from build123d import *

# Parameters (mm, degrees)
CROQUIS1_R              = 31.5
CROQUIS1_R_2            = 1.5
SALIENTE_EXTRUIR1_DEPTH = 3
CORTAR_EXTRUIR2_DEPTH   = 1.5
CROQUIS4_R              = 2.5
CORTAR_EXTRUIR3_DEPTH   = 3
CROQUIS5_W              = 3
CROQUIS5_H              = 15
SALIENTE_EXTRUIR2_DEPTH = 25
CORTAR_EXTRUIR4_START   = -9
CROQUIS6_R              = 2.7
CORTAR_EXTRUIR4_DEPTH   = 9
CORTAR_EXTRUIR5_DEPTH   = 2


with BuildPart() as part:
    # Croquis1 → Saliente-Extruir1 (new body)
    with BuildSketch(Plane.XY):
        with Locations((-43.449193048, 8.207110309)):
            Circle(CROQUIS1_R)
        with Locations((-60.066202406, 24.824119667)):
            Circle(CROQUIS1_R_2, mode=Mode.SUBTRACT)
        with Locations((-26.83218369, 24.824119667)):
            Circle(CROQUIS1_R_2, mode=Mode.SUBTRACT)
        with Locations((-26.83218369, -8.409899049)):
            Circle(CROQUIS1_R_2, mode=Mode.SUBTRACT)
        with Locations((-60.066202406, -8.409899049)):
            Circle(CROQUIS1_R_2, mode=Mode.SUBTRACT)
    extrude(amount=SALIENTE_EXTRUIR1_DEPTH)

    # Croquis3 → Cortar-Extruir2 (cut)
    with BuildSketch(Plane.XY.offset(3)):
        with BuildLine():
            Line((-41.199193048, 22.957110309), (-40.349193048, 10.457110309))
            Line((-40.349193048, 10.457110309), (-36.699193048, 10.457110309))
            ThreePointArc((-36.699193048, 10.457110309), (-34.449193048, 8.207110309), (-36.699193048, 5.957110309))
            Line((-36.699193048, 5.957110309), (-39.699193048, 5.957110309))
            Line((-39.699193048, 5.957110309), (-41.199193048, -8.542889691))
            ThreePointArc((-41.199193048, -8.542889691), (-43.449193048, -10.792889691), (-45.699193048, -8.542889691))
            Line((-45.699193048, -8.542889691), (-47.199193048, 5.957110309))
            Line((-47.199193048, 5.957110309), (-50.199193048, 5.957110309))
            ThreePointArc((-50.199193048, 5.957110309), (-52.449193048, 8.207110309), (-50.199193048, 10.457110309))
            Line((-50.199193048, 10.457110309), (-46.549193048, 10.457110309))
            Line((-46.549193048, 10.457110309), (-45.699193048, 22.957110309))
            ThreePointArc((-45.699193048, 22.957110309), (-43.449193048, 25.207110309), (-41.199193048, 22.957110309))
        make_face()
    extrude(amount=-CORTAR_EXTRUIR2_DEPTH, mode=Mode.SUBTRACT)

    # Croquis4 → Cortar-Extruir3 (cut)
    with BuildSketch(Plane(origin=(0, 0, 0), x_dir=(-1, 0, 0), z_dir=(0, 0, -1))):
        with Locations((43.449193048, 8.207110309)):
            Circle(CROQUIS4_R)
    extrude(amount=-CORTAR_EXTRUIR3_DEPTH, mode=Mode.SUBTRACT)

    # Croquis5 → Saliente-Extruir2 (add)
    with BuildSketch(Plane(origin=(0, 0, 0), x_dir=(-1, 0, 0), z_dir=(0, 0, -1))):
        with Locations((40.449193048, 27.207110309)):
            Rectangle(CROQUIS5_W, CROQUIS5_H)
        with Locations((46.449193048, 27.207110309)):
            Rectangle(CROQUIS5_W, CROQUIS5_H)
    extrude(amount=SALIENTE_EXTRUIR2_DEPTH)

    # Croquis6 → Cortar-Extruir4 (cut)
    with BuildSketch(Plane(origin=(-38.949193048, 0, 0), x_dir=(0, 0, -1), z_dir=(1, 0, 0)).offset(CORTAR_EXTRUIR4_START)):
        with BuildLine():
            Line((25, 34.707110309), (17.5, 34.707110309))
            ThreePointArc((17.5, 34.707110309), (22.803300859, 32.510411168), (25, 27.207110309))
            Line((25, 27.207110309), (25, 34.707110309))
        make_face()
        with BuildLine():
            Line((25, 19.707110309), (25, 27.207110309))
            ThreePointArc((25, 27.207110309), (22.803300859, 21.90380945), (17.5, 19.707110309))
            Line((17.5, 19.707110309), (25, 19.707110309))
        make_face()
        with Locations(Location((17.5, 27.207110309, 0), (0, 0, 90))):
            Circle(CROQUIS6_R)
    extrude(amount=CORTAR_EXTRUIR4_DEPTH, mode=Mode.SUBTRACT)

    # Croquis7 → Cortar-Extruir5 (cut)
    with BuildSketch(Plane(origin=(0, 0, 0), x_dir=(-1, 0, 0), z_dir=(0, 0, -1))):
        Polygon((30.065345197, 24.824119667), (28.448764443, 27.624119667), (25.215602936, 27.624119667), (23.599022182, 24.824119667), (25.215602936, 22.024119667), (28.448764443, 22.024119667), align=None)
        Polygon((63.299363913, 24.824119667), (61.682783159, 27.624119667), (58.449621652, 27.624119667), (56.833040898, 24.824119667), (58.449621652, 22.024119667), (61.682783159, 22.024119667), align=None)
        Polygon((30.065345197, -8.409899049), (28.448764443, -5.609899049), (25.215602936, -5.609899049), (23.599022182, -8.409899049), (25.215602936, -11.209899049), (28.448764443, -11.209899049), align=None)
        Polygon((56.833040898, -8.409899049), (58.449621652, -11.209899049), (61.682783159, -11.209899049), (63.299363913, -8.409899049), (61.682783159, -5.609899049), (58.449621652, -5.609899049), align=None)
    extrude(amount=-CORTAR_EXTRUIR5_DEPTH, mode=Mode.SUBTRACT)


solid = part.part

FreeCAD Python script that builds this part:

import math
import FreeCAD as App
import Part
import Sketcher

V = App.Vector
Q = App.Units.Quantity


def add_polygon(sketch, points):
    """Adds a closed chain of lines whose ends are joined by coincident constraints."""
    first, n = sketch.GeometryCount, len(points)
    for a, b in zip(points, points[1:] + points[:1]):
        sketch.addGeometry(Part.LineSegment(App.Vector(*a, 0), App.Vector(*b, 0)), False)
    for i in range(n):
        sketch.addConstraint(Sketcher.Constraint("Coincident", first + i, 2, first + (i + 1) % n, 1))

doc = App.newDocument("Part")
body = doc.addObject("PartDesign::Body", "Body")

sketch1 = body.newObject("Sketcher::SketchObject", "Sketch")
sketch1.AttachmentSupport = (doc.getObject("XY_Plane"), [""])
sketch1.MapMode = "FlatFace"
sketch1.addGeometry(Part.Circle(V(-43.4, 8.2, 0), V(0, 0, 1), 31.5), False)
sketch1.addGeometry(Part.Circle(V(-60.1, -8.4, 0), V(0, 0, 1), 1.5), False)
sketch1.addGeometry(Part.Circle(V(-26.8, -8.4, 0), V(0, 0, 1), 1.5), False)
sketch1.addGeometry(Part.Circle(V(-60.1, 24.8, 0), V(0, 0, 1), 1.5), False)
sketch1.addGeometry(Part.Circle(V(-26.8, 24.8, 0), V(0, 0, 1), 1.5), False)
sketch1.addConstraint(Sketcher.Constraint("Equal", 1, 2))
sketch1.addConstraint(Sketcher.Constraint("Equal", 2, 3))
sketch1.addConstraint(Sketcher.Constraint("Equal", 3, 4))
sketch1.addConstraint(Sketcher.Constraint("Horizontal", 1, 3, 2, 3))
sketch1.addConstraint(Sketcher.Constraint("Horizontal", 3, 3, 4, 3))
sketch1.addConstraint(Sketcher.Constraint("Vertical", 1, 3, 3, 3))
sketch1.addConstraint(Sketcher.Constraint("Vertical", 2, 3, 4, 3))
sketch1.addConstraint(Sketcher.Constraint("Diameter", 0, 63.0))
sketch1.addConstraint(Sketcher.Constraint("Diameter", 1, 3.0))
sketch1.addConstraint(Sketcher.Constraint("DistanceY", 1, 3, -1, 1, 8.409899))
sketch1.addConstraint(Sketcher.Constraint("DistanceY", -1, 1, 0, 3, 8.20711))
sketch1.addConstraint(Sketcher.Constraint("DistanceY", -1, 1, 3, 3, 24.82412))
sketch1.addConstraint(Sketcher.Constraint("DistanceX", 1, 3, 0, 3, 16.617009))
sketch1.addConstraint(Sketcher.Constraint("DistanceX", 0, 3, 2, 3, 16.617009))
sketch1.addConstraint(Sketcher.Constraint("DistanceX", 0, 3, -1, 1, 43.449193))
pad1 = body.newObject("PartDesign::Pad", "Pad")
pad1.Profile = sketch1
pad1.Length = 3

sketch2 = body.newObject("Sketcher::SketchObject", "Sketch001")
sketch2.AttachmentSupport = (doc.getObject("XY_Plane"), [""])
sketch2.MapMode = "FlatFace"
sketch2.AttachmentOffset = App.Placement(V(0, 0, 3), App.Rotation())
sketch2.addGeometry(Part.LineSegment(V(-40.3, 10.5, 0), V(-41.2, 23, 0)), False)
sketch2.addGeometry(Part.ArcOfCircle(Part.Circle(V(-43.4, 23, 0), V(0, 0, 1), 2.2), math.radians(0), math.radians(180)), False)
sketch2.addGeometry(Part.LineSegment(V(-45.7, 23, 0), V(-46.5, 10.5, 0)), False)
sketch2.addGeometry(Part.LineSegment(V(-46.5, 10.5, 0), V(-50.2, 10.5, 0)), False)
sketch2.addGeometry(Part.ArcOfCircle(Part.Circle(V(-50.2, 8.2, 0), V(0, 0, 1), 2.2), math.radians(90), math.radians(270)), False)
sketch2.addGeometry(Part.LineSegment(V(-50.2, 6, 0), V(-47.2, 6, 0)), False)
sketch2.addGeometry(Part.LineSegment(V(-47.2, 6, 0), V(-45.7, -8.5, 0)), False)
sketch2.addGeometry(Part.ArcOfCircle(Part.Circle(V(-43.4, -8.5, 0), V(0, 0, 1), 2.2), math.radians(180), math.radians(360)), False)
sketch2.addGeometry(Part.LineSegment(V(-41.2, -8.5, 0), V(-39.7, 6, 0)), False)
sketch2.addGeometry(Part.LineSegment(V(-39.7, 6, 0), V(-36.7, 6, 0)), False)
sketch2.addGeometry(Part.ArcOfCircle(Part.Circle(V(-36.7, 8.2, 0), V(0, 0, 1), 2.2), math.radians(-90), math.radians(90)), False)
sketch2.addGeometry(Part.LineSegment(V(-36.7, 10.5, 0), V(-40.3, 10.5, 0)), False)
sketch2.addConstraint(Sketcher.Constraint("Coincident", 0, 2, 1, 1))
sketch2.addConstraint(Sketcher.Constraint("Coincident", 1, 2, 2, 1))
sketch2.addConstraint(Sketcher.Constraint("Coincident", 2, 2, 3, 1))
sketch2.addConstraint(Sketcher.Constraint("Tangent", 3, 2, 4, 1))
sketch2.addConstraint(Sketcher.Constraint("Tangent", 4, 2, 5, 1))
sketch2.addConstraint(Sketcher.Constraint("Coincident", 5, 2, 6, 1))
sketch2.addConstraint(Sketcher.Constraint("Coincident", 6, 2, 7, 1))
sketch2.addConstraint(Sketcher.Constraint("Coincident", 7, 2, 8, 1))
sketch2.addConstraint(Sketcher.Constraint("Coincident", 8, 2, 9, 1))
sketch2.addConstraint(Sketcher.Constraint("Tangent", 9, 2, 10, 1))
sketch2.addConstraint(Sketcher.Constraint("Tangent", 10, 2, 11, 1))
sketch2.addConstraint(Sketcher.Constraint("Coincident", 11, 2, 0, 1))
sketch2.addConstraint(Sketcher.Constraint("Horizontal", 3))
sketch2.addConstraint(Sketcher.Constraint("Horizontal", 5))
sketch2.addConstraint(Sketcher.Constraint("Horizontal", 9))
sketch2.addConstraint(Sketcher.Constraint("Horizontal", 11))
sketch2.addConstraint(Sketcher.Constraint("Equal", 1, 4))
sketch2.addConstraint(Sketcher.Constraint("Equal", 4, 7))
sketch2.addConstraint(Sketcher.Constraint("Equal", 7, 10))
sketch2.addConstraint(Sketcher.Constraint("Horizontal", 4, 3, 10, 3))
sketch2.addConstraint(Sketcher.Constraint("Horizontal", 1, 3, 0, 2))
sketch2.addConstraint(Sketcher.Constraint("Horizontal", 0, 2, 1, 2))
sketch2.addConstraint(Sketcher.Constraint("Horizontal", 7, 3, 6, 2))
sketch2.addConstraint(Sketcher.Constraint("Horizontal", 6, 2, 7, 2))
sketch2.addConstraint(Sketcher.Constraint("Vertical", 1, 3, 7, 3))
sketch2.addConstraint(Sketcher.Constraint("Equal", 5, 9))
sketch2.addConstraint(Sketcher.Constraint("Equal", 3, 11))
sketch2.addConstraint(Sketcher.Constraint("Equal", 0, 2))
sketch2.addConstraint(Sketcher.Constraint("DistanceX", 5, 1, 5, 2, 3.0))
sketch2.addConstraint(Sketcher.Constraint("Radius", 1, 2.25))
sketch2.addConstraint(Sketcher.Constraint("DistanceX", 4, 3, 0, 2, 9.0))
sketch2.addConstraint(Sketcher.Constraint("DistanceX", 3, 2, 3, 1, 3.65))
sketch2.addConstraint(Sketcher.Constraint("DistanceY", 7, 3, 1, 3, 31.5))
sketch2.addConstraint(Sketcher.Constraint("DistanceY", 2, 2, 1, 2, 12.5))
sketch2.addConstraint(Sketcher.Constraint("DistanceY", -1, 1, 1, 3, 22.95711))
sketch2.addConstraint(Sketcher.Constraint("DistanceX", 1, 3, -1, 1, 43.449193))
pocket1 = body.newObject("PartDesign::Pocket", "Pocket")
pocket1.Profile = sketch2
pocket1.Length = 1.5

sketch3 = body.newObject("Sketcher::SketchObject", "Sketch002")
sketch3.AttachmentSupport = (doc.getObject("XY_Plane"), [""])
sketch3.MapMode = "FlatFace"
sketch3.addGeometry(Part.Circle(V(-43.4, 8.2, 0), V(0, 0, 1), 2.5), False)
sketch3.addConstraint(Sketcher.Constraint("Diameter", 0, 5.0))
sketch3.addConstraint(Sketcher.Constraint("DistanceY", -1, 1, 0, 3, 8.20711))
sketch3.addConstraint(Sketcher.Constraint("DistanceX", 0, 3, -1, 1, 43.449193))
pocket2 = body.newObject("PartDesign::Pocket", "Pocket001")
pocket2.Profile = sketch3
pocket2.Length = 3
pocket2.Reversed = True

sketch4 = body.newObject("Sketcher::SketchObject", "Sketch003")
sketch4.AttachmentSupport = (doc.getObject("XY_Plane"), [""])
sketch4.MapMode = "FlatFace"
add_polygon(sketch4, [(-38.9, 34.7), (-38.9, 19.7), (-41.9, 19.7), (-41.9, 34.7)])
add_polygon(sketch4, [(-44.9, 34.7), (-44.9, 19.7), (-47.9, 19.7), (-47.9, 34.7)])
sketch4.addConstraint(Sketcher.Constraint("Vertical", 0))
sketch4.addConstraint(Sketcher.Constraint("Horizontal", 1))
sketch4.addConstraint(Sketcher.Constraint("Vertical", 2))
sketch4.addConstraint(Sketcher.Constraint("Horizontal", 3))
sketch4.addConstraint(Sketcher.Constraint("Vertical", 4))
sketch4.addConstraint(Sketcher.Constraint("Horizontal", 5))
sketch4.addConstraint(Sketcher.Constraint("Vertical", 6))
sketch4.addConstraint(Sketcher.Constraint("Horizontal", 7))
sketch4.addConstraint(Sketcher.Constraint("Horizontal", 1, 2, 4, 2))
sketch4.addConstraint(Sketcher.Constraint("Horizontal", 3, 2, 6, 2))
sketch4.addConstraint(Sketcher.Constraint("Equal", 3, 5))
sketch4.addConstraint(Sketcher.Constraint("DistanceX", 1, 2, 1, 1, 3.0))
sketch4.addConstraint(Sketcher.Constraint("DistanceY", 0, 2, 0, 1, 15.0))
sketch4.addConstraint(Sketcher.Constraint("DistanceX", 4, 2, 1, 2, 3.0))
sketch4.addConstraint(Sketcher.Constraint("DistanceY", -1, 1, 0, 2, 19.70711))
sketch4.addConstraint(Sketcher.Constraint("DistanceX", 0, 2, -1, 1, 38.949193))
pad2 = body.newObject("PartDesign::Pad", "Pad001")
pad2.Profile = sketch4
pad2.Length = 25
pad2.Reversed = True

sketch5 = body.newObject("Sketcher::SketchObject", "Sketch004")
sketch5.AttachmentSupport = (doc.getObject("YZ_Plane"), [""])
sketch5.MapMode = "FlatFace"
sketch5.AttachmentOffset = App.Placement(V(0, 0, -47.949193), App.Rotation())
sketch5.addGeometry(Part.LineSegment(V(34.7, -25, 0), V(34.7, -17.5, 0)), False)
sketch5.addGeometry(Part.ArcOfCircle(Part.Circle(V(27.2, -17.5, 0), V(0, 0, 1), 7.5), math.radians(-90), math.radians(0)), False)
sketch5.addGeometry(Part.LineSegment(V(27.2, -25, 0), V(34.7, -25, 0)), False)
sketch5.addGeometry(Part.LineSegment(V(19.7, -25, 0), V(27.2, -25, 0)), False)
sketch5.addGeometry(Part.ArcOfCircle(Part.Circle(V(27.2, -17.5, 0), V(0, 0, 1), 7.5), math.radians(180), math.radians(270)), False)
sketch5.addGeometry(Part.LineSegment(V(19.7, -17.5, 0), V(19.7, -25, 0)), False)
sketch5.addGeometry(Part.Circle(V(27.2, -17.5, 0), V(0, 0, 1), 2.7), False)
sketch5.addConstraint(Sketcher.Constraint("Tangent", 0, 2, 1, 2))
sketch5.addConstraint(Sketcher.Constraint("Tangent", 1, 1, 2, 1))
sketch5.addConstraint(Sketcher.Constraint("Coincident", 2, 2, 0, 1))
sketch5.addConstraint(Sketcher.Constraint("Tangent", 3, 2, 4, 2))
sketch5.addConstraint(Sketcher.Constraint("Tangent", 4, 1, 5, 1))
sketch5.addConstraint(Sketcher.Constraint("Coincident", 5, 2, 3, 1))
sketch5.addConstraint(Sketcher.Constraint("Vertical", 0))
sketch5.addConstraint(Sketcher.Constraint("Horizontal", 2))
sketch5.addConstraint(Sketcher.Constraint("Horizontal", 3))
sketch5.addConstraint(Sketcher.Constraint("Vertical", 5))
sketch5.addConstraint(Sketcher.Constraint("Coincident", 4, 3, 1, 3))
sketch5.addConstraint(Sketcher.Constraint("Coincident", 6, 3, 1, 3))
sketch5.addConstraint(Sketcher.Constraint("Equal", 1, 4))
sketch5.addConstraint(Sketcher.Constraint("Diameter", 6, 5.4))
sketch5.addConstraint(Sketcher.Constraint("Radius", 1, 7.5))
sketch5.addConstraint(Sketcher.Constraint("DistanceY", 1, 1, -1, 1, 25.0))
sketch5.addConstraint(Sketcher.Constraint("DistanceX", -1, 1, 1, 3, 27.20711))
pocket3 = body.newObject("PartDesign::Pocket", "Pocket002")
pocket3.Profile = sketch5
pocket3.Length = 9
pocket3.Reversed = True

sketch6 = body.newObject("Sketcher::SketchObject", "Sketch005")
sketch6.AttachmentSupport = (doc.getObject("XY_Plane"), [""])
sketch6.MapMode = "FlatFace"
add_polygon(sketch6, [(-30.1, 24.8), (-28.4, 27.6), (-25.2, 27.6), (-23.6, 24.8), (-25.2, 22), (-28.4, 22)])
add_polygon(sketch6, [(-63.3, 24.8), (-61.7, 27.6), (-58.4, 27.6), (-56.8, 24.8), (-58.4, 22), (-61.7, 22)])
add_polygon(sketch6, [(-30.1, -8.4), (-28.4, -5.6), (-25.2, -5.6), (-23.6, -8.4), (-25.2, -11.2), (-28.4, -11.2)])
add_polygon(sketch6, [(-56.8, -8.4), (-58.4, -11.2), (-61.7, -11.2), (-63.3, -8.4), (-61.7, -5.6), (-58.4, -5.6)])
sketch6.addConstraint(Sketcher.Constraint("Horizontal", 1))
sketch6.addConstraint(Sketcher.Constraint("Horizontal", 4))
sketch6.addConstraint(Sketcher.Constraint("Horizontal", 7))
sketch6.addConstraint(Sketcher.Constraint("Horizontal", 10))
sketch6.addConstraint(Sketcher.Constraint("Horizontal", 13))
sketch6.addConstraint(Sketcher.Constraint("Horizontal", 16))
sketch6.addConstraint(Sketcher.Constraint("Horizontal", 19))
sketch6.addConstraint(Sketcher.Constraint("Horizontal", 22))
sketch6.addConstraint(Sketcher.Constraint("Parallel", 0, 3))
sketch6.addConstraint(Sketcher.Constraint("Parallel", 2, 5))
sketch6.addConstraint(Sketcher.Constraint("Parallel", 3, 6))
sketch6.addConstraint(Sketcher.Constraint("Parallel", 5, 8))
sketch6.addConstraint(Sketcher.Constraint("Parallel", 6, 9))
sketch6.addConstraint(Sketcher.Constraint("Parallel", 8, 11))
sketch6.addConstraint(Sketcher.Constraint("Parallel", 9, 12))
sketch6.addConstraint(Sketcher.Constraint("Parallel", 11, 14))
sketch6.addConstraint(Sketcher.Constraint("Parallel", 12, 15))
sketch6.addConstraint(Sketcher.Constraint("Parallel", 14, 17))
sketch6.addConstraint(Sketcher.Constraint("Parallel", 15, 18))
sketch6.addConstraint(Sketcher.Constraint("Parallel", 17, 20))
sketch6.addConstraint(Sketcher.Constraint("Parallel", 18, 21))
sketch6.addConstraint(Sketcher.Constraint("Parallel", 20, 23))
sketch6.addConstraint(Sketcher.Constraint("Horizontal", 2, 2, 5, 2))
sketch6.addConstraint(Sketcher.Constraint("Horizontal", 1, 2, 6, 2))
sketch6.addConstraint(Sketcher.Constraint("Horizontal", 5, 2, 8, 2))
sketch6.addConstraint(Sketcher.Constraint("Horizontal", 4, 2, 9, 2))
sketch6.addConstraint(Sketcher.Constraint("Horizontal", 8, 2, 11, 2))
sketch6.addConstraint(Sketcher.Constraint("Horizontal", 14, 2, 17, 2))
sketch6.addConstraint(Sketcher.Constraint("Horizontal", 16, 2, 18, 2))
sketch6.addConstraint(Sketcher.Constraint("Horizontal", 17, 2, 20, 2))
sketch6.addConstraint(Sketcher.Constraint("Horizontal", 13, 2, 21, 2))
sketch6.addConstraint(Sketcher.Constraint("Horizontal", 20, 2, 23, 2))
sketch6.addConstraint(Sketcher.Constraint("Vertical", 1, 2, 3, 2))
sketch6.addConstraint(Sketcher.Constraint("Vertical", 0, 2, 4, 2))
sketch6.addConstraint(Sketcher.Constraint("Vertical", 4, 2, 12, 2))
sketch6.addConstraint(Sketcher.Constraint("Vertical", 3, 2, 13, 2))
sketch6.addConstraint(Sketcher.Constraint("Vertical", 2, 2, 14, 2))
sketch6.addConstraint(Sketcher.Constraint("Vertical", 13, 2, 15, 2))
sketch6.addConstraint(Sketcher.Constraint("Vertical", 9, 2, 18, 2))
sketch6.addConstraint(Sketcher.Constraint("Vertical", 10, 2, 19, 2))
sketch6.addConstraint(Sketcher.Constraint("Equal", 4, 7))
sketch6.addConstraint(Sketcher.Constraint("Angle", 0, Q("60 deg")))
sketch6.addConstraint(Sketcher.Constraint("DistanceY", 2, 2, 1, 2, 2.8))
sketch6.addConstraint(Sketcher.Constraint("DistanceX", 1, 1, 1, 2, 3.233162))
sketch6.addConstraint(Sketcher.Constraint("DistanceY", 12, 2, -1, 1, 5.609899))
sketch6.addConstraint(Sketcher.Constraint("DistanceY", -1, 1, 0, 2, 27.62412))
sketch6.addConstraint(Sketcher.Constraint("DistanceX", 7, 2, -1, 1, 58.449622))
sketch6.addConstraint(Sketcher.Constraint("DistanceX", 6, 2, 0, 2, 33.234019))
pocket4 = body.newObject("PartDesign::Pocket", "Pocket003")
pocket4.Profile = sketch6
pocket4.Length = 2
pocket4.Reversed = True

doc.recompute()
